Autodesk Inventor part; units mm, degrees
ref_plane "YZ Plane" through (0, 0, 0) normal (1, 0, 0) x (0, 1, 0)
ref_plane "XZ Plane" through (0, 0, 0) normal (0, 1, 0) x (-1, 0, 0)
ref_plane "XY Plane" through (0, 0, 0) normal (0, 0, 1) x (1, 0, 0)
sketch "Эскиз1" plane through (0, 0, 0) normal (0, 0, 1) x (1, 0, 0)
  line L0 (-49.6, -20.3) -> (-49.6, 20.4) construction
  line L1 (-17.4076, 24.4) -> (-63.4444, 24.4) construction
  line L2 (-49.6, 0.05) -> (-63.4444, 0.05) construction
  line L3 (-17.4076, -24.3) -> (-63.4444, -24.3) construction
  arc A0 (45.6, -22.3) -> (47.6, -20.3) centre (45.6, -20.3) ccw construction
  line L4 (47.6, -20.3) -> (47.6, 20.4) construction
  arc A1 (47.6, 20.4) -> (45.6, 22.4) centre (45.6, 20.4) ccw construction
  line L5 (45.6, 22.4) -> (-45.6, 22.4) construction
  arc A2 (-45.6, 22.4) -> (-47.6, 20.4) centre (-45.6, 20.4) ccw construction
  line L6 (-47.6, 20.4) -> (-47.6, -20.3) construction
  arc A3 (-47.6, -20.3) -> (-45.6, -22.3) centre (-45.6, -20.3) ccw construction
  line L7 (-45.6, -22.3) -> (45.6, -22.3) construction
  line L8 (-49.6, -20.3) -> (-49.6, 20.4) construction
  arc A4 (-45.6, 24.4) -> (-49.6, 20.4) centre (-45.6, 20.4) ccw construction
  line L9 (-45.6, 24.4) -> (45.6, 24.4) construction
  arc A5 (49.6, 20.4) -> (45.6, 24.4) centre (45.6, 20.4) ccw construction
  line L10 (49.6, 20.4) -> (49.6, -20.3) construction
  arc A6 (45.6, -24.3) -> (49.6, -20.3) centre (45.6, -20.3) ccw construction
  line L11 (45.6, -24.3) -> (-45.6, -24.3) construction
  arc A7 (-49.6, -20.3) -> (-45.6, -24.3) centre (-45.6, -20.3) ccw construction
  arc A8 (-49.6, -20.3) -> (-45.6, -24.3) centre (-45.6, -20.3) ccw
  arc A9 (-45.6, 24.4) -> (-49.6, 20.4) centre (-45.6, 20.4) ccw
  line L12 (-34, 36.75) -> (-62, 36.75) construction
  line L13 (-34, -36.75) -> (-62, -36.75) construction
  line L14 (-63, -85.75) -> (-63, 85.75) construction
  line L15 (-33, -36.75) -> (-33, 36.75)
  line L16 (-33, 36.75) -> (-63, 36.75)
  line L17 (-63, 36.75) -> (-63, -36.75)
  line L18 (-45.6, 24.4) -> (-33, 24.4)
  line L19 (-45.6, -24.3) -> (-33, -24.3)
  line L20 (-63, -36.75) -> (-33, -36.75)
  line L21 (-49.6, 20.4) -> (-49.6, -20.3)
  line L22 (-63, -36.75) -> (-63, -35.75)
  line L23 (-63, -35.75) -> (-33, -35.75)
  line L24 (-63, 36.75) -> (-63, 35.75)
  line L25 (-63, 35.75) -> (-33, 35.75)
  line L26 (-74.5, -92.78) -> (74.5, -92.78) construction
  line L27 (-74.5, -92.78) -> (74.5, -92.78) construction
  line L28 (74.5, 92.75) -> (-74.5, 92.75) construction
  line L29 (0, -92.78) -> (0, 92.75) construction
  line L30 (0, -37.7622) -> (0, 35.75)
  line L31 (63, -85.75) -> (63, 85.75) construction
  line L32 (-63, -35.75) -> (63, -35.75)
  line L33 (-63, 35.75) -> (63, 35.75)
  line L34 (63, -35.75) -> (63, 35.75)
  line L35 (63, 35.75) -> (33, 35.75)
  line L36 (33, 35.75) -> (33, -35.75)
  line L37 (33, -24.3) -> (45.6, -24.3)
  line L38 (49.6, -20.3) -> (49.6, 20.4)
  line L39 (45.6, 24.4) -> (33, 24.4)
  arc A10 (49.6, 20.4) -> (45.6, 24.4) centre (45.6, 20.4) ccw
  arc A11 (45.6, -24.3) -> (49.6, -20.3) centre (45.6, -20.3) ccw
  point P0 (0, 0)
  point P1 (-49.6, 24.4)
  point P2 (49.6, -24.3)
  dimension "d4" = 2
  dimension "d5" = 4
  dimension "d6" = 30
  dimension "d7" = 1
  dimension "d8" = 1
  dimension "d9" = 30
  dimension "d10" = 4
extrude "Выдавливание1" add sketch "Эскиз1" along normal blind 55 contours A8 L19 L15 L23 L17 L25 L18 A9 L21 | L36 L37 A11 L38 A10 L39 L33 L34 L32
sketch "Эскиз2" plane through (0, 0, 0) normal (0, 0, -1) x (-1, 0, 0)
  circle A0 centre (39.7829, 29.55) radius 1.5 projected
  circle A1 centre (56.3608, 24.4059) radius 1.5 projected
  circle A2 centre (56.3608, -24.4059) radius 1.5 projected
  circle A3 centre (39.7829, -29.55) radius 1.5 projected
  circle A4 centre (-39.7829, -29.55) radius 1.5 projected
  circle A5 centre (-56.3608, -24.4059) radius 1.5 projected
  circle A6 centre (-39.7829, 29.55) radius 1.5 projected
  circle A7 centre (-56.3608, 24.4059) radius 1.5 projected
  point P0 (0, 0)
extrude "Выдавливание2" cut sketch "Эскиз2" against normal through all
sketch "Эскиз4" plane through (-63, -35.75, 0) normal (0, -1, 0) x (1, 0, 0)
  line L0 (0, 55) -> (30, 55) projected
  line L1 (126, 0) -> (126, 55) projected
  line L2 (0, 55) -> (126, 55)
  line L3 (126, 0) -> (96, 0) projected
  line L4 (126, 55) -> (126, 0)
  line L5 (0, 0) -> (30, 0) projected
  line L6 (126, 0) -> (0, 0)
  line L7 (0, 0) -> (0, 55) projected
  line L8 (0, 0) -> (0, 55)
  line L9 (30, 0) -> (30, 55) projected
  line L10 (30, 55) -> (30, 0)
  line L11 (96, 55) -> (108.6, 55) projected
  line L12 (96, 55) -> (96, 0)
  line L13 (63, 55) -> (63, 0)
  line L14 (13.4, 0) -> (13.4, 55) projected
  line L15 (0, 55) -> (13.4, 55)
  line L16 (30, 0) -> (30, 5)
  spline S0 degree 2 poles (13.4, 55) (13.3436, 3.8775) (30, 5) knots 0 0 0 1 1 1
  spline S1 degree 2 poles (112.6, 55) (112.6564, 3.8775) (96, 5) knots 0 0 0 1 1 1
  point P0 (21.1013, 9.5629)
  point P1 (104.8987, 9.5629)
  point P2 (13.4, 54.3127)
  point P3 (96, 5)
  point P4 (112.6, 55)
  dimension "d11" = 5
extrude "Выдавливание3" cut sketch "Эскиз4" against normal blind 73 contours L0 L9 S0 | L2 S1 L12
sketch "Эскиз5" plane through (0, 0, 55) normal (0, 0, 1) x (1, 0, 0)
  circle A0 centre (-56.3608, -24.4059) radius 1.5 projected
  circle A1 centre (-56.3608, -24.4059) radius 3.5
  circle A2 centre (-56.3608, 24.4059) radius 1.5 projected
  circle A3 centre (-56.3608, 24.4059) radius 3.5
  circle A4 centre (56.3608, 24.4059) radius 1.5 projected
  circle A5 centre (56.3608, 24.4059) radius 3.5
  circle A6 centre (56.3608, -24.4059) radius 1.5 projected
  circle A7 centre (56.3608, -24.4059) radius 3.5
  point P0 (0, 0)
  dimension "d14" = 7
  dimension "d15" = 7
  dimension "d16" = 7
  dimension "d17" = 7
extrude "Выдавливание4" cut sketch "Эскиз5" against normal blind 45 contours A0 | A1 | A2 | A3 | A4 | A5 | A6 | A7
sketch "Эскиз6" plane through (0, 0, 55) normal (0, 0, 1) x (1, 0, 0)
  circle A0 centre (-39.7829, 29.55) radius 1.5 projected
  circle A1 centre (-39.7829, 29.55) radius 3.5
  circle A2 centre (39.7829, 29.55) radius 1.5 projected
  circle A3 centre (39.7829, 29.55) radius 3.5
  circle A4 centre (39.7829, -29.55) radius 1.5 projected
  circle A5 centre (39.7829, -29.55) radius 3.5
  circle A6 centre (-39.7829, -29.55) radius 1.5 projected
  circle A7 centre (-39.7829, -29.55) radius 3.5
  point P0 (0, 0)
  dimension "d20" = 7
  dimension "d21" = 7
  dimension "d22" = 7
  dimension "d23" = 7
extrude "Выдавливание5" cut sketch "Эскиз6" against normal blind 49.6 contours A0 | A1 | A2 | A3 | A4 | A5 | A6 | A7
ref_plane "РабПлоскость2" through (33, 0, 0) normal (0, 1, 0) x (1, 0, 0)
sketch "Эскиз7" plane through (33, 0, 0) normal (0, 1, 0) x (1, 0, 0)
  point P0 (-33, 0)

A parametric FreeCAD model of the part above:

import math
import FreeCAD as App
import Part
import Sketcher
from FreeCAD import Vector
Q = App.Units.Quantity

doc = App.newDocument("Part")
body = doc.addObject("PartDesign::Body", "Body")
body.AllowCompound = True

# Sketch on XY plane
sketch1 = body.newObject("Sketcher::SketchObject", "Sketch")
sketch1.AttachmentSupport = (doc.getObject("XY_Plane"), [""])
sketch1.MapMode = "FlatFace"
sketch1.addGeometry(Part.ArcOfCircle(Part.Circle(Vector(-45.6, -20.3, 0), Vector(0, 0, 1), 4), math.radians(180), math.radians(270)), False)
sketch1.addGeometry(Part.LineSegment(Vector(-49.6, -20.3, 0), Vector(-49.6, 20.4, 0)), False)
sketch1.addGeometry(Part.ArcOfCircle(Part.Circle(Vector(-45.6, 20.4, 0), Vector(0, 0, 1), 4), math.radians(90), math.radians(180)), False)
sketch1.addGeometry(Part.LineSegment(Vector(-45.6, 24.4, 0), Vector(-33, 24.4, 0)), False)
sketch1.addGeometry(Part.LineSegment(Vector(-33, 24.4, 0), Vector(-33, 35.8, 0)), False)
sketch1.addGeometry(Part.LineSegment(Vector(-33, 35.8, 0), Vector(-63, 35.8, 0)), False)
sketch1.addGeometry(Part.LineSegment(Vector(-63, 35.8, 0), Vector(-63, -35.8, 0)), False)
sketch1.addGeometry(Part.LineSegment(Vector(-63, -35.8, 0), Vector(-33, -35.8, 0)), False)
sketch1.addGeometry(Part.LineSegment(Vector(-33, -35.8, 0), Vector(-33, -24.3, 0)), False)
sketch1.addGeometry(Part.LineSegment(Vector(-33, -24.3, 0), Vector(-45.6, -24.3, 0)), False)
sketch1.addGeometry(Part.LineSegment(Vector(33, -24.3, 0), Vector(33, -35.8, 0)), False)
sketch1.addGeometry(Part.LineSegment(Vector(33, -35.8, 0), Vector(63, -35.8, 0)), False)
sketch1.addGeometry(Part.LineSegment(Vector(63, -35.8, 0), Vector(63, 35.8, 0)), False)
sketch1.addGeometry(Part.LineSegment(Vector(63, 35.8, 0), Vector(33, 35.8, 0)), False)
sketch1.addGeometry(Part.LineSegment(Vector(33, 35.8, 0), Vector(33, 24.4, 0)), False)
sketch1.addGeometry(Part.LineSegment(Vector(33, 24.4, 0), Vector(45.6, 24.4, 0)), False)
sketch1.addGeometry(Part.ArcOfCircle(Part.Circle(Vector(45.6, 20.4, 0), Vector(0, 0, 1), 4), math.radians(0), math.radians(90)), False)
sketch1.addGeometry(Part.LineSegment(Vector(49.6, 20.4, 0), Vector(49.6, -20.3, 0)), False)
sketch1.addGeometry(Part.ArcOfCircle(Part.Circle(Vector(45.6, -20.3, 0), Vector(0, 0, 1), 4), math.radians(-90), math.radians(0)), False)
sketch1.addGeometry(Part.LineSegment(Vector(45.6, -24.3, 0), Vector(33, -24.3, 0)), False)
sketch1.addConstraint(Sketcher.Constraint("Tangent", 0, 1, 1, 1))
sketch1.addConstraint(Sketcher.Constraint("Tangent", 1, 2, 2, 2))
sketch1.addConstraint(Sketcher.Constraint("Tangent", 2, 1, 3, 1))
sketch1.addConstraint(Sketcher.Constraint("Coincident", 3, 2, 4, 1))
sketch1.addConstraint(Sketcher.Constraint("Coincident", 4, 2, 5, 1))
sketch1.addConstraint(Sketcher.Constraint("Coincident", 5, 2, 6, 1))
sketch1.addConstraint(Sketcher.Constraint("Coincident", 6, 2, 7, 1))
sketch1.addConstraint(Sketcher.Constraint("Coincident", 7, 2, 8, 1))
sketch1.addConstraint(Sketcher.Constraint("Coincident", 8, 2, 9, 1))
sketch1.addConstraint(Sketcher.Constraint("Tangent", 9, 2, 0, 2))
sketch1.addConstraint(Sketcher.Constraint("Coincident", 10, 2, 11, 1))
sketch1.addConstraint(Sketcher.Constraint("Coincident", 11, 2, 12, 1))
sketch1.addConstraint(Sketcher.Constraint("Coincident", 12, 2, 13, 1))
sketch1.addConstraint(Sketcher.Constraint("Coincident", 13, 2, 14, 1))
sketch1.addConstraint(Sketcher.Constraint("Coincident", 14, 2, 15, 1))
sketch1.addConstraint(Sketcher.Constraint("Tangent", 15, 2, 16, 2))
sketch1.addConstraint(Sketcher.Constraint("Tangent", 16, 1, 17, 1))
sketch1.addConstraint(Sketcher.Constraint("Tangent", 17, 2, 18, 2))
sketch1.addConstraint(Sketcher.Constraint("Tangent", 18, 1, 19, 1))
sketch1.addConstraint(Sketcher.Constraint("Coincident", 19, 2, 10, 1))
sketch1.addConstraint(Sketcher.Constraint("Vertical", 1))
sketch1.addConstraint(Sketcher.Constraint("Horizontal", 3))
sketch1.addConstraint(Sketcher.Constraint("Vertical", 4))
sketch1.addConstraint(Sketcher.Constraint("Horizontal", 5))
sketch1.addConstraint(Sketcher.Constraint("Vertical", 6))
sketch1.addConstraint(Sketcher.Constraint("Horizontal", 7))
sketch1.addConstraint(Sketcher.Constraint("Vertical", 8))
sketch1.addConstraint(Sketcher.Constraint("Horizontal", 9))
sketch1.addConstraint(Sketcher.Constraint("Vertical", 10))
sketch1.addConstraint(Sketcher.Constraint("Horizontal", 11))
sketch1.addConstraint(Sketcher.Constraint("Vertical", 12))
sketch1.addConstraint(Sketcher.Constraint("Horizontal", 13))
sketch1.addConstraint(Sketcher.Constraint("Vertical", 14))
sketch1.addConstraint(Sketcher.Constraint("Horizontal", 15))
sketch1.addConstraint(Sketcher.Constraint("Vertical", 17))
sketch1.addConstraint(Sketcher.Constraint("Horizontal", 19))
sketch1.addConstraint(Sketcher.Constraint("Equal", 0, 2))
sketch1.addConstraint(Sketcher.Constraint("Equal", 2, 16))
sketch1.addConstraint(Sketcher.Constraint("Equal", 16, 18))
sketch1.addConstraint(Sketcher.Constraint("Symmetric", 4, 2, 10, 2, -1, 1))
sketch1.addConstraint(Sketcher.Constraint("Symmetric", 6, 2, 12, 2, -1, 1))
sketch1.addConstraint(Sketcher.Constraint("Symmetric", 2, 3, 16, 3, -2))
sketch1.addConstraint(Sketcher.Constraint("Symmetric", 7, 2, 10, 2, -2))
sketch1.addConstraint(Sketcher.Constraint("Horizontal", 0, 3, 18, 3))
sketch1.addConstraint(Sketcher.Constraint("Vertical", 10, 2, 13, 2))
sketch1.addConstraint(Sketcher.Constraint("Radius", 0, Q("4 mm")))
sketch1.addConstraint(Sketcher.Constraint("DistanceX", 5, 2, 5, 1, Q("30 mm")))
sketch1.addConstraint(Sketcher.Constraint("DistanceX", 3, 1, 3, 2, Q("12.6 mm")))
sketch1.addConstraint(Sketcher.Constraint("DistanceY", 1, 1, 1, 2, Q("40.7 mm")))
sketch1.addConstraint(Sketcher.Constraint("DistanceY", 6, 2, 6, 1, Q("71.5 mm")))
sketch1.addConstraint(Sketcher.Constraint("DistanceX", 3, 2, -1, 1, Q("33 mm")))
sketch1.addConstraint(Sketcher.Constraint("DistanceY", 4, 1, 4, 2, Q("11.35 mm")))
pad1 = body.newObject("PartDesign::Pad", "Pad")
pad1.Profile = sketch1
pad1.Length = 55

# Sketch on XY plane
sketch2 = body.newObject("Sketcher::SketchObject", "Sketch001")
sketch2.AttachmentSupport = (doc.getObject("XY_Plane"), [""])
sketch2.MapMode = "FlatFace"
sketch2.addGeometry(Part.Circle(Vector(-39.8, 29.6, 0), Vector(0, 0, 1), 1.5), False)
sketch2.addGeometry(Part.Circle(Vector(-56.4, 24.4, 0), Vector(0, 0, 1), 1.5), False)
sketch2.addGeometry(Part.Circle(Vector(-56.4, -24.4, 0), Vector(0, 0, 1), 1.5), False)
sketch2.addGeometry(Part.Circle(Vector(-39.8, -29.6, 0), Vector(0, 0, 1), 1.5), False)
sketch2.addGeometry(Part.Circle(Vector(39.8, -29.6, 0), Vector(0, 0, 1), 1.5), False)
sketch2.addGeometry(Part.Circle(Vector(56.4, -24.4, 0), Vector(0, 0, 1), 1.5), False)
sketch2.addGeometry(Part.Circle(Vector(39.8, 29.6, 0), Vector(0, 0, 1), 1.5), False)
sketch2.addGeometry(Part.Circle(Vector(56.4, 24.4, 0), Vector(0, 0, 1), 1.5), False)
sketch2.addConstraint(Sketcher.Constraint("Equal", 0, 1))
sketch2.addConstraint(Sketcher.Constraint("Equal", 1, 2))
sketch2.addConstraint(Sketcher.Constraint("Equal", 2, 3))
sketch2.addConstraint(Sketcher.Constraint("Equal", 3, 4))
sketch2.addConstraint(Sketcher.Constraint("Equal", 4, 5))
sketch2.addConstraint(Sketcher.Constraint("Equal", 5, 6))
sketch2.addConstraint(Sketcher.Constraint("Equal", 6, 7))
sketch2.addConstraint(Sketcher.Constraint("Symmetric", 0, 3, 4, 3, -1, 1))
sketch2.addConstraint(Sketcher.Constraint("Symmetric", 1, 3, 5, 3, -1, 1))
sketch2.addConstraint(Sketcher.Constraint("Symmetric", 3, 3, 6, 3, -1, 1))
sketch2.addConstraint(Sketcher.Constraint("Symmetric", 2, 3, 7, 3, -1, 1))
sketch2.addConstraint(Sketcher.Constraint("Symmetric", 3, 3, 4, 3, -2))
sketch2.addConstraint(Sketcher.Constraint("Symmetric", 2, 3, 5, 3, -2))
sketch2.addConstraint(Sketcher.Constraint("Diameter", 0, Q("3 mm")))
sketch2.addConstraint(Sketcher.Constraint("DistanceY", 3, 3, 0, 3, Q("59.1 mm")))
sketch2.addConstraint(Sketcher.Constraint("DistanceX", 0, 3, -1, 1, Q("39.783 mm")))
sketch2.addConstraint(Sketcher.Constraint("DistanceY", -1, 1, 1, 3, Q("24.406 mm")))
sketch2.addConstraint(Sketcher.Constraint("DistanceX", 1, 3, 0, 3, Q("16.578 mm")))
pocket1 = body.newObject("PartDesign::Pocket", "Pocket")
pocket1.Profile = sketch2
pocket1.Type = "ThroughAll"
pocket1.Reversed = True

# Sketch on XZ plane
sketch3 = body.newObject("Sketcher::SketchObject", "Sketch002")
sketch3.AttachmentSupport = (doc.getObject("XZ_Plane"), [""])
sketch3.MapMode = "FlatFace"
sketch3.AttachmentOffset = App.Placement(Vector(0, 0, 35.75), App.Rotation())
sketch3.addGeometry(Part.LineSegment(Vector(-33, 55, 0), Vector(-49.6, 55, 0)), False)
sketch3.addGeometry(Part.BSplineCurve([Vector(-49.6, 55, 0), Vector(-49.6564, 3.8775, 0), Vector(-33, 5, 0)], [3, 3], [0, 1], False, 2, [1, 1, 1], False), False)
sketch3.addGeometry(Part.LineSegment(Vector(-33, 5, 0), Vector(-33, 55, 0)), False)
sketch3.addGeometry(Part.LineSegment(Vector(49.6, 55, 0), Vector(33, 55, 0)), False)
sketch3.addGeometry(Part.LineSegment(Vector(33, 55, 0), Vector(33, 5, 0)), False)
sketch3.addGeometry(Part.BSplineCurve([Vector(49.6, 55, 0), Vector(49.6564, 3.8775, 0), Vector(33, 5, 0)], [3, 3], [0, 1], False, 2, [1, 1, 1], False), False)
sketch3.addConstraint(Sketcher.Constraint("Block", 1))
sketch3.addConstraint(Sketcher.Constraint("Block", 5))
sketch3.addConstraint(Sketcher.Constraint("Coincident", 0, 2, 1, 1))
sketch3.addConstraint(Sketcher.Constraint("Coincident", 1, 2, 2, 1))
sketch3.addConstraint(Sketcher.Constraint("Coincident", 2, 2, 0, 1))
sketch3.addConstraint(Sketcher.Constraint("Coincident", 3, 2, 4, 1))
sketch3.addConstraint(Sketcher.Constraint("Coincident", 4, 2, 5, 2))
sketch3.addConstraint(Sketcher.Constraint("Coincident", 5, 1, 3, 1))
sketch3.addConstraint(Sketcher.Constraint("Horizontal", 0))
sketch3.addConstraint(Sketcher.Constraint("Vertical", 2))
sketch3.addConstraint(Sketcher.Constraint("Horizontal", 3))
sketch3.addConstraint(Sketcher.Constraint("Vertical", 4))
pocket2 = body.newObject("PartDesign::Pocket", "Pocket001")
pocket2.Profile = sketch3
pocket2.Length = 73

# Sketch on XY plane
sketch4 = body.newObject("Sketcher::SketchObject", "Sketch003")
sketch4.AttachmentSupport = (doc.getObject("XY_Plane"), [""])
sketch4.MapMode = "FlatFace"
sketch4.AttachmentOffset = App.Placement(Vector(0, 0, 55), App.Rotation())
sketch4.addGeometry(Part.Circle(Vector(-56.4, -24.4, 0), Vector(0, 0, 1), 3.5), False)
sketch4.addGeometry(Part.Circle(Vector(-56.4, 24.4, 0), Vector(0, 0, 1), 3.5), False)
sketch4.addGeometry(Part.Circle(Vector(56.4, 24.4, 0), Vector(0, 0, 1), 3.5), False)
sketch4.addGeometry(Part.Circle(Vector(56.4, -24.4, 0), Vector(0, 0, 1), 3.5), False)
sketch4.addConstraint(Sketcher.Constraint("Equal", 0, 1))
sketch4.addConstraint(Sketcher.Constraint("Equal", 1, 2))
sketch4.addConstraint(Sketcher.Constraint("Equal", 2, 3))
sketch4.addConstraint(Sketcher.Constraint("Symmetric", 0, 3, 2, 3, -1, 1))
sketch4.addConstraint(Sketcher.Constraint("Symmetric", 1, 3, 3, 3, -1, 1))
sketch4.addConstraint(Sketcher.Constraint("Symmetric", 1, 3, 2, 3, -2))
sketch4.addConstraint(Sketcher.Constraint("Diameter", 0, Q("7 mm")))
sketch4.addConstraint(Sketcher.Constraint("DistanceY", 0, 3, -1, 1, Q("24.406 mm")))
sketch4.addConstraint(Sketcher.Constraint("DistanceX", 0, 3, -1, 1, Q("56.3608 mm")))
pocket3 = body.newObject("PartDesign::Pocket", "Pocket002")
pocket3.Profile = sketch4
pocket3.Length = 45

# Sketch on XY plane
sketch5 = body.newObject("Sketcher::SketchObject", "Sketch004")
sketch5.AttachmentSupport = (doc.getObject("XY_Plane"), [""])
sketch5.MapMode = "FlatFace"
sketch5.AttachmentOffset = App.Placement(Vector(0, 0, 55), App.Rotation())
sketch5.addGeometry(Part.Circle(Vector(-39.8, 29.6, 0), Vector(0, 0, 1), 3.5), False)
sketch5.addGeometry(Part.Circle(Vector(39.8, 29.6, 0), Vector(0, 0, 1), 3.5), False)
sketch5.addGeometry(Part.Circle(Vector(39.8, -29.6, 0), Vector(0, 0, 1), 3.5), False)
sketch5.addGeometry(Part.Circle(Vector(-39.8, -29.6, 0), Vector(0, 0, 1), 3.5), False)
sketch5.addConstraint(Sketcher.Constraint("Equal", 0, 1))
sketch5.addConstraint(Sketcher.Constraint("Equal", 1, 2))
sketch5.addConstraint(Sketcher.Constraint("Equal", 2, 3))
sketch5.addConstraint(Sketcher.Constraint("Symmetric", 0, 3, 2, 3, -1, 1))
sketch5.addConstraint(Sketcher.Constraint("Symmetric", 1, 3, 3, 3, -1, 1))
sketch5.addConstraint(Sketcher.Constraint("Symmetric", 0, 3, 1, 3, -2))
sketch5.addConstraint(Sketcher.Constraint("Diameter", 0, Q("7 mm")))
sketch5.addConstraint(Sketcher.Constraint("DistanceY", 2, 3, 1, 3, Q("59.1 mm")))
sketch5.addConstraint(Sketcher.Constraint("DistanceX", 0, 3, -1, 1, Q("39.783 mm")))
pocket4 = body.newObject("PartDesign::Pocket", "Pocket003")
pocket4.Profile = sketch5
pocket4.Length = 49.6

doc.recompute()
